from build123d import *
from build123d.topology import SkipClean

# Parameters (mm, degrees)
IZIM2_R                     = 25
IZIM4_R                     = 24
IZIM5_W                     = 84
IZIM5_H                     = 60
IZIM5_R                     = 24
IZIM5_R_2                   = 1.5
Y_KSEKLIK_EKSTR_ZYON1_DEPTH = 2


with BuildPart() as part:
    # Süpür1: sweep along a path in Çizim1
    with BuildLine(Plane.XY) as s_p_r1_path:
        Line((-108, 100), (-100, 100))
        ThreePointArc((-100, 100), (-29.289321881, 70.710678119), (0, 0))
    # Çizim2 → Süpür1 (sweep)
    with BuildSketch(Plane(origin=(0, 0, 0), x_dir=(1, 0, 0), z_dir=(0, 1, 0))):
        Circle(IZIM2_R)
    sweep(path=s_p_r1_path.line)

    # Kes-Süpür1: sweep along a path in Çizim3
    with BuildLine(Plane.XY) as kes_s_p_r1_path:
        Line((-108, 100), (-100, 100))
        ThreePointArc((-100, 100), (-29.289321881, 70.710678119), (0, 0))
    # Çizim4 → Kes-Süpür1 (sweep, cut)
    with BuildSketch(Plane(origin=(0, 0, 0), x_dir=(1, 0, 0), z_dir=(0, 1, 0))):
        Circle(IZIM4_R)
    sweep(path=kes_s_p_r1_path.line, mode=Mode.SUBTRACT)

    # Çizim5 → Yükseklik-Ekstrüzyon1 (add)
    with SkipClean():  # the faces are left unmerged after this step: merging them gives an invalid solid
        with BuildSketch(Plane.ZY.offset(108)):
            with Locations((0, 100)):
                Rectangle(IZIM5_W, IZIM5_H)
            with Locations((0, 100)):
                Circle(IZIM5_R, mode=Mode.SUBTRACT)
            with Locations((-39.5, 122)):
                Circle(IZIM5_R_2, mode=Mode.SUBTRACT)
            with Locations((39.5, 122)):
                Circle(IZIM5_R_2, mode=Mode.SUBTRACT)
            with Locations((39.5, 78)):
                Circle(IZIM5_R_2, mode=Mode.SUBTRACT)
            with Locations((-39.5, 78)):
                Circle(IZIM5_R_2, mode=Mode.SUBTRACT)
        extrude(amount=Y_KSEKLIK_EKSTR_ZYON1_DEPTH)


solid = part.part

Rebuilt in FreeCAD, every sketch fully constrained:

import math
import FreeCAD as App
import Part
import Sketcher
from FreeCAD import Vector
Q = App.Units.Quantity

doc = App.newDocument("Part")
body = doc.addObject("PartDesign::Body", "Body")

# Sketch on XZ plane
sketch1 = body.newObject("Sketcher::SketchObject", "Sketch")
sketch1.AttachmentSupport = (doc.getObject("XZ_Plane"), [""])
sketch1.MapMode = "FlatFace"
sketch1.addGeometry(Part.Circle(Vector(0, 0, 0), Vector(0, 0, 1), 25), False)
sketch1.addConstraint([
    Sketcher.Constraint("Coincident", 0, 3, -1, 1),
    Sketcher.Constraint("Diameter", 0, Q("50 mm")),
])

# Sketch on XY plane
sketch2 = body.newObject("Sketcher::SketchObject", "Sketch001")
sketch2.AttachmentSupport = (doc.getObject("XY_Plane"), [""])
sketch2.MapMode = "FlatFace"
sketch2.addGeometry([
    Part.LineSegment(Vector(-108, 100, 0), Vector(-100, 100, 0)),
    Part.ArcOfCircle(Part.Circle(Vector(-100, 0, 0), Vector(0, 0, 1), 100), math.radians(0), math.radians(90)),
], False)
sketch2.addConstraint([
    Sketcher.Constraint("Tangent", 0, 2, 1, 2),
    Sketcher.Constraint("Horizontal", 0),
    Sketcher.Constraint("Coincident", 1, 1, -1, 1),
    Sketcher.Constraint("PointOnObject", 1, 3, -1),
    Sketcher.Constraint("Radius", 1, Q("100 mm")),
    Sketcher.Constraint("DistanceX", 0, 1, 0, 2, Q("8 mm")),
])
doc.recompute()

additivepipe = body.newObject("PartDesign::AdditivePipe", "AdditivePipe")
additivepipe.Profile = sketch1
additivepipe.Spine = (sketch2, ["Edge1", "Edge2"])

# Sketch on XZ plane
sketch3 = body.newObject("Sketcher::SketchObject", "Sketch002")
sketch3.AttachmentSupport = (doc.getObject("XZ_Plane"), [""])
sketch3.MapMode = "FlatFace"
sketch3.addGeometry(Part.Circle(Vector(0, 0, 0), Vector(0, 0, 1), 24), False)
sketch3.addConstraint([
    Sketcher.Constraint("Coincident", 0, 3, -1, 1),
    Sketcher.Constraint("Diameter", 0, Q("48 mm")),
])

# Sketch on XY plane
sketch4 = body.newObject("Sketcher::SketchObject", "Sketch003")
sketch4.AttachmentSupport = (doc.getObject("XY_Plane"), [""])
sketch4.MapMode = "FlatFace"
sketch4.addGeometry([
    Part.LineSegment(Vector(-108, 100, 0), Vector(-100, 100, 0)),
    Part.ArcOfCircle(Part.Circle(Vector(-100, 0, 0), Vector(0, 0, 1), 100), math.radians(0), math.radians(90)),
], False)
sketch4.addConstraint([
    Sketcher.Constraint("Tangent", 0, 2, 1, 2),
    Sketcher.Constraint("Horizontal", 0),
    Sketcher.Constraint("Coincident", 1, 1, -1, 1),
    Sketcher.Constraint("PointOnObject", 1, 3, -1),
    Sketcher.Constraint("Radius", 1, Q("100 mm")),
    Sketcher.Constraint("DistanceX", 0, 1, 0, 2, Q("8 mm")),
])
doc.recompute()

subtractivepipe = body.newObject("PartDesign::SubtractivePipe", "SubtractivePipe")
subtractivepipe.Profile = sketch3
subtractivepipe.Spine = (sketch4, ["Edge1", "Edge2"])

# Sketch on YZ plane
sketch5 = body.newObject("Sketcher::SketchObject", "Sketch004")
sketch5.AttachmentSupport = (doc.getObject("YZ_Plane"), [""])
sketch5.MapMode = "FlatFace"
sketch5.AttachmentOffset = App.Placement(Vector(0, 0, -108), App.Rotation())
sketch5.addGeometry([
    Part.LineSegment(Vector(130, -42, 0), Vector(70, -42, 0)),  # 0
    Part.LineSegment(Vector(70, -42, 0), Vector(70, 42, 0)),  # 1
    Part.LineSegment(Vector(70, 42, 0), Vector(130, 42, 0)),  # 2
    Part.LineSegment(Vector(130, 42, 0), Vector(130, -42, 0)),  # 3
    Part.Circle(Vector(78, -39.5, 0), Vector(0, 0, 1), 1.5),  # 4
    Part.Circle(Vector(78, 39.5, 0), Vector(0, 0, 1), 1.5),  # 5
    Part.Circle(Vector(122, -39.5, 0), Vector(0, 0, 1), 1.5),  # 6
    Part.Circle(Vector(100, 0, 0), Vector(0, 0, 1), 24),  # 7
    Part.Circle(Vector(122, 39.5, 0), Vector(0, 0, 1), 1.5),  # 8
], False)
sketch5.addConstraint([
    Sketcher.Constraint("Coincident", 0, 2, 1, 1),
    Sketcher.Constraint("Coincident", 1, 2, 2, 1),
    Sketcher.Constraint("Coincident", 2, 2, 3, 1),
    Sketcher.Constraint("Coincident", 3, 2, 0, 1),
    Sketcher.Constraint("Horizontal", 0),
    Sketcher.Constraint("Vertical", 1),
    Sketcher.Constraint("Horizontal", 2),
    Sketcher.Constraint("Vertical", 3),
    Sketcher.Constraint("Equal", 4, 5),
    Sketcher.Constraint("Equal", 5, 6),
    Sketcher.Constraint("Equal", 6, 8),
    Sketcher.Constraint("Symmetric", 4, 3, 5, 3, -1),
    Sketcher.Constraint("Symmetric", 6, 3, 8, 3, -1),
    Sketcher.Constraint("PointOnObject", 7, 3, -1),
    Sketcher.Constraint("Horizontal", 4, 3, 6, 3),
    Sketcher.Constraint("Diameter", 4, Q("3 mm")),
    Sketcher.Constraint("Diameter", 7, Q("48 mm")),
    Sketcher.Constraint("DistanceX", 0, 2, 0, 1, Q("60 mm")),
    Sketcher.Constraint("DistanceY", 1, 1, 1, 2, Q("84 mm")),
    Sketcher.Constraint("DistanceX", -1, 1, 4, 3, Q("78 mm")),
    Sketcher.Constraint("DistanceX", -1, 1, 6, 3, Q("122 mm")),
    Sketcher.Constraint("DistanceX", -1, 1, 7, 3, Q("100 mm")),
    Sketcher.Constraint("DistanceX", -1, 1, 0, 2, Q("70 mm")),
    Sketcher.Constraint("DistanceY", 0, 2, -1, 1, Q("42 mm")),
    Sketcher.Constraint("DistanceY", 4, 3, 5, 3, Q("79 mm")),
])
pad1 = body.newObject("PartDesign::Pad", "Pad")
pad1.Profile = sketch5
pad1.Length = 2
pad1.Reversed = True

doc.recompute()
